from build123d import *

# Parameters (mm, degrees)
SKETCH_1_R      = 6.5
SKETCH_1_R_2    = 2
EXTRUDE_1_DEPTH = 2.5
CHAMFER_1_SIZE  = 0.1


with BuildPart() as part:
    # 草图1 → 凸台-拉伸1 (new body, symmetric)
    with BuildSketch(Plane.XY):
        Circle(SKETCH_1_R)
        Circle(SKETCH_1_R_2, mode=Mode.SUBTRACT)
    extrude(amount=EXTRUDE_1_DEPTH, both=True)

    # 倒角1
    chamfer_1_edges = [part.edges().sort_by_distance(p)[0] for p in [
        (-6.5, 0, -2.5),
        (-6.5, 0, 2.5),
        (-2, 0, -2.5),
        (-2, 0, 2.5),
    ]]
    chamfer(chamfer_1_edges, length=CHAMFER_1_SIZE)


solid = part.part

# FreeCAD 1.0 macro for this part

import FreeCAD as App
import Part
import Sketcher
Q = App.Units.Quantity


def edges_at(feature, points):
    """Names of the edges that pass closest to the given points."""
    edges = feature.Shape.Edges
    near = lambda p: min(range(len(edges)), key=lambda i: edges[i].distToShape(Part.Vertex(*p))[0])
    return sorted({f"Edge{near(p) + 1}" for p in points})

doc = App.newDocument("Part")
body = doc.addObject("PartDesign::Body", "Body")

# Sketch on XY plane
sketch1 = doc.addObject("Sketcher::SketchObject", "Sketch")
body.addObject(sketch1)
sketch1.AttachmentSupport = (doc.XY_Plane, [""])
sketch1.MapMode = "FlatFace"
sketch1.addGeometry(Part.Circle(App.Vector(0, 0, 0), App.Vector(0, 0, 1), 6.5), False)
sketch1.addGeometry(Part.Circle(App.Vector(0, 0, 0), App.Vector(0, 0, 1), 2), False)
sketch1.addConstraint(Sketcher.Constraint("Coincident", 0, 3, -1, 1))
sketch1.addConstraint(Sketcher.Constraint("Coincident", 1, 3, -1, 1))
sketch1.addConstraint(Sketcher.Constraint("Diameter", 0, Q("13 mm")))
sketch1.addConstraint(Sketcher.Constraint("Diameter", 1, Q("4 mm")))
pad1 = doc.addObject("PartDesign::Pad", "Pad")
body.addObject(pad1)
pad1.Profile = sketch1
pad1.Length = 5
pad1.Midplane = True
doc.recompute()

chamfer = doc.addObject("PartDesign::Chamfer", "Chamfer")
body.addObject(chamfer)
chamfer.Base = (pad1, edges_at(pad1, [
    (-6.5, 0, -2.5),
    (-6.5, 0, 2.5),
    (-2, 0, -2.5),
    (-2, 0, 2.5),
]))
chamfer.Size = 0.1

doc.recompute()
